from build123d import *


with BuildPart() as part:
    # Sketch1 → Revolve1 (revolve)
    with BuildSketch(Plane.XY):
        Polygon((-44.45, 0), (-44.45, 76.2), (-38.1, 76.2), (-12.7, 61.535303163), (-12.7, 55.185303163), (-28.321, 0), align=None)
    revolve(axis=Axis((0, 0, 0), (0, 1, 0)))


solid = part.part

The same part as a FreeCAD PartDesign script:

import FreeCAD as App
import Part
import Sketcher
Q = App.Units.Quantity

doc = App.newDocument("Part")
body = doc.addObject("PartDesign::Body", "Body")

sketch1 = doc.addObject("Sketcher::SketchObject", "Sketch")
body.addObject(sketch1)
sketch1.AttachmentSupport = (doc.XY_Plane, [""])
sketch1.MapMode = "FlatFace"
sketch1.addGeometry([
    Part.LineSegment(App.Vector(-44, 76, 0), App.Vector(-44, 0, 0)),
    Part.LineSegment(App.Vector(-44, 0, 0), App.Vector(-28, 0, 0)),
    Part.LineSegment(App.Vector(-28, 0, 0), App.Vector(-13, 55, 0)),
    Part.LineSegment(App.Vector(-13, 55, 0), App.Vector(-13, 62, 0)),
    Part.LineSegment(App.Vector(-13, 62, 0), App.Vector(-38, 76, 0)),
    Part.LineSegment(App.Vector(-38, 76, 0), App.Vector(-44, 76, 0)),
], False)
sketch1.addConstraint([
    Sketcher.Constraint("Coincident", 0, 2, 1, 1),
    Sketcher.Constraint("Coincident", 1, 2, 2, 1),
    Sketcher.Constraint("Coincident", 2, 2, 3, 1),
    Sketcher.Constraint("Coincident", 3, 2, 4, 1),
    Sketcher.Constraint("Coincident", 4, 2, 5, 1),
    Sketcher.Constraint("Coincident", 5, 2, 0, 1),
    Sketcher.Constraint("Vertical", 0),
    Sketcher.Constraint("Horizontal", 1),
    Sketcher.Constraint("Vertical", 3),
    Sketcher.Constraint("Horizontal", 5),
    Sketcher.Constraint("PointOnObject", 0, 2, -1),
    Sketcher.Constraint("Equal", 5, 3),
    Sketcher.Constraint("DistanceY", 0, 2, 0, 1, Q("3 in")),
    Sketcher.Constraint("Angle", 4, Q("150 deg")),
    Sketcher.Constraint("DistanceX", 4, 2, 3, 2, Q("1 in")),
    Sketcher.Constraint("DistanceX", 5, 2, 5, 1, Q("0.25 in")),
    Sketcher.Constraint("DistanceX", 2, 2, -1, 1, Q("0.5 in")),
    Sketcher.Constraint("DistanceX", 1, 1, 1, 2, Q("0.635 in")),
])
revolution = doc.addObject("PartDesign::Revolution", "Revolution")
body.addObject(revolution)
revolution.Profile = sketch1
revolution.ReferenceAxis = (sketch1, ["V_Axis"])
revolution.Angle = 360

doc.recompute()
